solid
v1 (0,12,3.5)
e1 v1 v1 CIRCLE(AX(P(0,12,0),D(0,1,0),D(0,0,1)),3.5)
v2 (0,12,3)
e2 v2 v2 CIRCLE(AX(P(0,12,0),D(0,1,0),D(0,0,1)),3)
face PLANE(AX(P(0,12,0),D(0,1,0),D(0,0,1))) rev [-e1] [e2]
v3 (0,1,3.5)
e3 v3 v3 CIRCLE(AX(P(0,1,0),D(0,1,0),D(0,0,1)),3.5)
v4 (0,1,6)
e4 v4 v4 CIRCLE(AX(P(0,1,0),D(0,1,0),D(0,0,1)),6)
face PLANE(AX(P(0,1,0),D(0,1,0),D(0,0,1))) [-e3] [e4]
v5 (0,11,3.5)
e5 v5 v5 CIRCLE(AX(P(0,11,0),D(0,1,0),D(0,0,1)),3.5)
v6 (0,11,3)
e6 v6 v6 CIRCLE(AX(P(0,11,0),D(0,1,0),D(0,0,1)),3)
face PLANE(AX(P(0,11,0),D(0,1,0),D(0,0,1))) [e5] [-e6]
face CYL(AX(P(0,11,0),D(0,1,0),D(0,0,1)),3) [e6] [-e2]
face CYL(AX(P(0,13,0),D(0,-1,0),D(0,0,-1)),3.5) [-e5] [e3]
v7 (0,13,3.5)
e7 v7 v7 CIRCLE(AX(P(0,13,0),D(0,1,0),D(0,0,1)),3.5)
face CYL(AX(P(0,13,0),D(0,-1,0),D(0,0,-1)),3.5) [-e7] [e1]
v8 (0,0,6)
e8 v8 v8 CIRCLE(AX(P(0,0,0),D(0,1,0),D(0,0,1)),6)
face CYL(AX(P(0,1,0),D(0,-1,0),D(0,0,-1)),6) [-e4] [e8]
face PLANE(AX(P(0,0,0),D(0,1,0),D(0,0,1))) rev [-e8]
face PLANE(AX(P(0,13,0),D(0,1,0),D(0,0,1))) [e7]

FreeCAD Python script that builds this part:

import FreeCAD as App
import Part
import Sketcher
from FreeCAD import Vector

doc = App.newDocument("Part")
body = doc.addObject("PartDesign::Body", "Body")

sketch1 = body.newObject("Sketcher::SketchObject", "Sketch")
sketch1.AttachmentSupport = (doc.getObject("XZ_Plane"), [""])
sketch1.MapMode = "FlatFace"
sketch1.addGeometry(Part.Circle(Vector(0, 0, 0), Vector(0, 0, 1), 6), False)
sketch1.addConstraint([
    Sketcher.Constraint("Coincident", 0, 3, -1, 1),
    Sketcher.Constraint("Diameter", 0, 12.0),
])
pad1 = body.newObject("PartDesign::Pad", "Pad")
pad1.Profile = sketch1
pad1.Length = 1
pad1.Reversed = True

sketch2 = body.newObject("Sketcher::SketchObject", "Sketch001")
sketch2.AttachmentSupport = (doc.getObject("XZ_Plane"), [""])
sketch2.MapMode = "FlatFace"
sketch2.AttachmentOffset = App.Placement(Vector(0, 0, -1), App.Rotation())
sketch2.addGeometry(Part.Circle(Vector(0, 0, 0), Vector(0, 0, 1), 3.5), False)
sketch2.addConstraint([
    Sketcher.Constraint("Coincident", 0, 3, -1, 1),
    Sketcher.Constraint("Diameter", 0, 7.0),
])
pad2 = body.newObject("PartDesign::Pad", "Pad001")
pad2.Profile = sketch2
pad2.Length = 12
pad2.Reversed = True

sketch3 = body.newObject("Sketcher::SketchObject", "Sketch002")
sketch3.AttachmentSupport = (doc.getObject("XZ_Plane"), [""])
sketch3.MapMode = "FlatFace"
sketch3.AttachmentOffset = App.Placement(Vector(0, 0, -11), App.Rotation())
sketch3.addGeometry([
    Part.Circle(Vector(0, 0, 0), Vector(0, 0, 1), 3.5),
    Part.Circle(Vector(0, 0, 0), Vector(0, 0, 1), 3),
], False)
sketch3.addConstraint([
    Sketcher.Constraint("Coincident", 0, 3, -1, 1),
    Sketcher.Constraint("Coincident", 1, 3, -1, 1),
    Sketcher.Constraint("Diameter", 0, 7.0),
    Sketcher.Constraint("Diameter", 1, 6.0),
])
pocket1 = body.newObject("PartDesign::Pocket", "Pocket")
pocket1.Profile = sketch3
pocket1.Length = 1

doc.recompute()
